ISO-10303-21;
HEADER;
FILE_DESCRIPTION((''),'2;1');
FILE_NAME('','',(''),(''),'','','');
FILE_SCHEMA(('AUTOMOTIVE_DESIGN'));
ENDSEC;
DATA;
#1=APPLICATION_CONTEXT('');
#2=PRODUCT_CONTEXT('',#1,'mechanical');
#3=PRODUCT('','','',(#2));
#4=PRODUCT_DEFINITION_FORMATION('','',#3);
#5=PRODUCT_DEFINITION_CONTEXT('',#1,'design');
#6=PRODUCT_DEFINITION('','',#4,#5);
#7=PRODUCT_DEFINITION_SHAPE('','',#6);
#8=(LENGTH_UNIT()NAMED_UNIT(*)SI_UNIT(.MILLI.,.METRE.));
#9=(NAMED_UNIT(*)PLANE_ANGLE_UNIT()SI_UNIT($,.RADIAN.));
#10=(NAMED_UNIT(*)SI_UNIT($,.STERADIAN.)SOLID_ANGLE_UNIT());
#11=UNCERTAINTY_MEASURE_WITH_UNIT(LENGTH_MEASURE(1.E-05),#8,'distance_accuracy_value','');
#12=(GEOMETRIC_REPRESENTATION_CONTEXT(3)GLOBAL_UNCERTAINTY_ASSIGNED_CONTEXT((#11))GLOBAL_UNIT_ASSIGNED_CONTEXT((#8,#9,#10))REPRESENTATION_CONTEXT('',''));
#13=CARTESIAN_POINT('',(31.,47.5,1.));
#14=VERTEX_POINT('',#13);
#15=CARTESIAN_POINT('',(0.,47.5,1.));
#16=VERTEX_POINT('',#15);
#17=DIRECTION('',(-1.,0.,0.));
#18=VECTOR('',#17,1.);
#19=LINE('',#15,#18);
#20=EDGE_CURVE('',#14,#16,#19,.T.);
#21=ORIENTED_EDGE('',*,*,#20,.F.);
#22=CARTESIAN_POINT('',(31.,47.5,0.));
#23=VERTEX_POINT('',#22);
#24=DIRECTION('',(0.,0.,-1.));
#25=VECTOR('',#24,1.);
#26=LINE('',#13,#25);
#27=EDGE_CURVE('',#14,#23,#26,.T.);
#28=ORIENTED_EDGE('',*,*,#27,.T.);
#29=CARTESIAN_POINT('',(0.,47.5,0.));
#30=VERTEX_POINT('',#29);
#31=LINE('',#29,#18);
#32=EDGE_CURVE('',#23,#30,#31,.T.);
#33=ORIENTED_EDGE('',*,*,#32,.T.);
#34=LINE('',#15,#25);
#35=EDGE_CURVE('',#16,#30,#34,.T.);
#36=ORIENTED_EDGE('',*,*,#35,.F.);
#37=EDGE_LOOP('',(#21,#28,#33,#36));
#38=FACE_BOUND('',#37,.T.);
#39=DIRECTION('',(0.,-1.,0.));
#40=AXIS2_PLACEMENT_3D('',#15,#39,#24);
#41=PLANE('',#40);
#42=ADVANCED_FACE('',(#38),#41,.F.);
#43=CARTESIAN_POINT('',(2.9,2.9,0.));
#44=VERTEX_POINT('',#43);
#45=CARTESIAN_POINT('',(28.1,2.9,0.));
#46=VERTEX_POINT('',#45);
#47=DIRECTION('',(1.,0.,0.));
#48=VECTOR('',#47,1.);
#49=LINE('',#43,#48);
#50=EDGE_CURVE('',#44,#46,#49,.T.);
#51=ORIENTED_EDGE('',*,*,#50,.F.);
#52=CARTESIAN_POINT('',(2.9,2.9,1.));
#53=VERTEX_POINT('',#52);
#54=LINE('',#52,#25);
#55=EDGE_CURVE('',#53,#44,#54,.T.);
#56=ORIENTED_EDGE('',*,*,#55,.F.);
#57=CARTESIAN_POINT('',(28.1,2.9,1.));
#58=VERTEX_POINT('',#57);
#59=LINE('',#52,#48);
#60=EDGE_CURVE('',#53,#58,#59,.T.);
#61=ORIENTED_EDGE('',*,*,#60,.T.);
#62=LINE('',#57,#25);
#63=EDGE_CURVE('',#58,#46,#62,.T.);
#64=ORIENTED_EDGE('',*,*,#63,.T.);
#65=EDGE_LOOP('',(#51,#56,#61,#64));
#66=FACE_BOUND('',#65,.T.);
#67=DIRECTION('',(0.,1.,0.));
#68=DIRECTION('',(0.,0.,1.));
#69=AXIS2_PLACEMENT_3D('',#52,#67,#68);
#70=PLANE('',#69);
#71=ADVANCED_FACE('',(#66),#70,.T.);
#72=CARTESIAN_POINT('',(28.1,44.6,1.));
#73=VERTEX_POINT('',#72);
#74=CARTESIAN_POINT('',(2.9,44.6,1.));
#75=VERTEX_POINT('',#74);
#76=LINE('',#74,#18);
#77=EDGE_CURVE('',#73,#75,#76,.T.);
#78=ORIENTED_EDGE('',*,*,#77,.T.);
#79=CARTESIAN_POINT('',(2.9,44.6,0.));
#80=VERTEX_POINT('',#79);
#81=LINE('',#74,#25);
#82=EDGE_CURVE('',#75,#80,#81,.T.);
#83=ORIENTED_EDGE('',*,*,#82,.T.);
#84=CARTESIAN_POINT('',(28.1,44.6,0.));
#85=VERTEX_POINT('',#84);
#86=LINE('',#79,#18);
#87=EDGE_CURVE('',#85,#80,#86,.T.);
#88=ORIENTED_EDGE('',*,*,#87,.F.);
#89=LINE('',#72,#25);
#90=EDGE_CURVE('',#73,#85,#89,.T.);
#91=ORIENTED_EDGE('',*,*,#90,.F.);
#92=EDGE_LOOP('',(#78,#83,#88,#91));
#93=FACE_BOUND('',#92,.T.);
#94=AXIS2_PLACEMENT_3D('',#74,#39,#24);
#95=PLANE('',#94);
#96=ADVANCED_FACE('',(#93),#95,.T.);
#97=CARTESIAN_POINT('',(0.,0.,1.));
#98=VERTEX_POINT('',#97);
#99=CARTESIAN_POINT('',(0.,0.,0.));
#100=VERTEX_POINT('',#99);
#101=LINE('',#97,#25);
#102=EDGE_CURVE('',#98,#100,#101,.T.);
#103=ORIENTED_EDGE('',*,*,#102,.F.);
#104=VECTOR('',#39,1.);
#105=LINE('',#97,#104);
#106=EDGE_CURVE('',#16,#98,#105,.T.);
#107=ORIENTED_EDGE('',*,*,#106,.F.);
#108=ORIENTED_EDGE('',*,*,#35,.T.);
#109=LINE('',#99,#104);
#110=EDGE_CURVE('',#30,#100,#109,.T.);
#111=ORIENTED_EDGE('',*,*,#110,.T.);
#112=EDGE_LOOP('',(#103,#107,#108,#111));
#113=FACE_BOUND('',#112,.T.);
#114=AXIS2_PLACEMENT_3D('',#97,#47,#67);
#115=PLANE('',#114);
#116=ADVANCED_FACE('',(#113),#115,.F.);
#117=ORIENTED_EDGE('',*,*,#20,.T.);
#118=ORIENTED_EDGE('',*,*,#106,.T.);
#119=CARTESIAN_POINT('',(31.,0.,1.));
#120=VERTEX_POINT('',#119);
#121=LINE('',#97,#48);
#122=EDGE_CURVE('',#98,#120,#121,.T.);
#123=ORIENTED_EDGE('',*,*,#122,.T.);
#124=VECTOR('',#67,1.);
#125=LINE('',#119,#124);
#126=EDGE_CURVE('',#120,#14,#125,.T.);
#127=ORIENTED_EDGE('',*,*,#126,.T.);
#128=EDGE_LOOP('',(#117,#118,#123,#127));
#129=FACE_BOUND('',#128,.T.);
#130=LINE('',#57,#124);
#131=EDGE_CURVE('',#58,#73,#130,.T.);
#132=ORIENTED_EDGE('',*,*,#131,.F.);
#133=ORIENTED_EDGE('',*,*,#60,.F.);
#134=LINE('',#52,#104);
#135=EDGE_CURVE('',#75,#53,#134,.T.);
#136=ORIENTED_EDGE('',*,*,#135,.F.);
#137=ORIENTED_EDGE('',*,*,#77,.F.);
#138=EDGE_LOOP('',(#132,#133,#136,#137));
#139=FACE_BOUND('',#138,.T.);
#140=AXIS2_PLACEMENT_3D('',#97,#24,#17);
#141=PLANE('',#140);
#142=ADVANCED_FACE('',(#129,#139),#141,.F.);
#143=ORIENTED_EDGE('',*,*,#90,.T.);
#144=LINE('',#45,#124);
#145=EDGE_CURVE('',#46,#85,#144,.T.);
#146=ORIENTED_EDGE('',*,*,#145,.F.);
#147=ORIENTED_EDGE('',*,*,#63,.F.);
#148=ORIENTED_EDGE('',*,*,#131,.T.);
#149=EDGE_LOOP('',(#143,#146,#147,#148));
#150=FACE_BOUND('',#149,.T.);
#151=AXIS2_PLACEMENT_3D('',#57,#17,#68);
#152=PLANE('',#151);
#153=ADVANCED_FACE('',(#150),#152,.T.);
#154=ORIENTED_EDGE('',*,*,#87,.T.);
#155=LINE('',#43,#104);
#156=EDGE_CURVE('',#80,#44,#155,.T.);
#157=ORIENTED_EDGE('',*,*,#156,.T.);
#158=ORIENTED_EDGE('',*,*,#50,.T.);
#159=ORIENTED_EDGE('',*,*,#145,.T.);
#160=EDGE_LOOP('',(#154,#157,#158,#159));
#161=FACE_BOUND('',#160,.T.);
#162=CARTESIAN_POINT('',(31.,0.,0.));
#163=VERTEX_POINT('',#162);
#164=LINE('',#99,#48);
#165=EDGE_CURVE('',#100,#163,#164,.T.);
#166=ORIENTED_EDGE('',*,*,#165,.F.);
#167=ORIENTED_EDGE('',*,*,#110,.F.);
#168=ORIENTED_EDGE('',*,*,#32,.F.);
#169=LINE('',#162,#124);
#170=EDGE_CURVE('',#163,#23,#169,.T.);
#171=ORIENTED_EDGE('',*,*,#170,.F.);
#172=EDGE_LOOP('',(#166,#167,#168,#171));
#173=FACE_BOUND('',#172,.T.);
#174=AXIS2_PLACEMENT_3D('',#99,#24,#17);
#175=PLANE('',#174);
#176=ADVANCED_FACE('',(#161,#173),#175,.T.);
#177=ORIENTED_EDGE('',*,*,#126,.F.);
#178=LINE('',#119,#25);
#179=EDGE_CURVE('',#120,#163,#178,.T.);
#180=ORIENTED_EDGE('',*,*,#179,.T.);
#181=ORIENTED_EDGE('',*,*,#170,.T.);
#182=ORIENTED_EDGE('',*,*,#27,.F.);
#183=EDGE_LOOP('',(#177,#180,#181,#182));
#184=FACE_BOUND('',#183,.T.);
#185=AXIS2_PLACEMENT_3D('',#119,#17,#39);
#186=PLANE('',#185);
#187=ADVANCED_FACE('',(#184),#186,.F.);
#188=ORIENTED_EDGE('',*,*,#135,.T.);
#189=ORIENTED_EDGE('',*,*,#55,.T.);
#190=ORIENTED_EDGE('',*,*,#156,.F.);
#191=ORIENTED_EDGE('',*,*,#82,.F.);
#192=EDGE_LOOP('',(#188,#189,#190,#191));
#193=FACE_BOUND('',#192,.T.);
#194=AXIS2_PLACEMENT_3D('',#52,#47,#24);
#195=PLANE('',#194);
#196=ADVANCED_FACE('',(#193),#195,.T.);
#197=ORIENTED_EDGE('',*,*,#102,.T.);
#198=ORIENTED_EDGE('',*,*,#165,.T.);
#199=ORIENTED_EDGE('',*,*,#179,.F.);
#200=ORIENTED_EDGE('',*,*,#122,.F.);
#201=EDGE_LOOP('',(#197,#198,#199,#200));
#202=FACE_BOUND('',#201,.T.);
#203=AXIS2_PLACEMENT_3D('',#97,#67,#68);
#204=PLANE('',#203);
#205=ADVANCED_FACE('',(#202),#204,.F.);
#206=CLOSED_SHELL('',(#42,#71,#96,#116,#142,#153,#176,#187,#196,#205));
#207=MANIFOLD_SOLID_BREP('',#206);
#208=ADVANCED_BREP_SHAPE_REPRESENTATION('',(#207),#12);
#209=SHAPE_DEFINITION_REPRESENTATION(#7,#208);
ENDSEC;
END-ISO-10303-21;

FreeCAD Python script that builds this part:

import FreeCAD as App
import Part
import Sketcher
Q = App.Units.Quantity


def add_polygon(sketch, points):
    """Adds a closed chain of lines whose ends are joined by coincident constraints."""
    first, n = sketch.GeometryCount, len(points)
    for a, b in zip(points, points[1:] + points[:1]):
        sketch.addGeometry(Part.LineSegment(App.Vector(*a, 0), App.Vector(*b, 0)), False)
    for i in range(n):
        sketch.addConstraint(Sketcher.Constraint("Coincident", first + i, 2, first + (i + 1) % n, 1))

doc = App.newDocument("Part")
body = doc.addObject("PartDesign::Body", "Body")

# Sketch on XY plane
sketch1 = doc.addObject("Sketcher::SketchObject", "Sketch")
body.addObject(sketch1)
sketch1.AttachmentSupport = (doc.XY_Plane, [""])
sketch1.MapMode = "FlatFace"
add_polygon(sketch1, [(0, 47.5), (0, 0), (31, 0), (31, 47.5)])  # lines 0-3
add_polygon(sketch1, [(28.1, 2.9), (2.9, 2.9), (2.9, 44.6), (28.1, 44.6)])  # lines 4-7
sketch1.addConstraint(Sketcher.Constraint("Vertical", 0))
sketch1.addConstraint(Sketcher.Constraint("Horizontal", 1))
sketch1.addConstraint(Sketcher.Constraint("Vertical", 2))
sketch1.addConstraint(Sketcher.Constraint("Horizontal", 3))
sketch1.addConstraint(Sketcher.Constraint("Horizontal", 4))
sketch1.addConstraint(Sketcher.Constraint("Vertical", 5))
sketch1.addConstraint(Sketcher.Constraint("Horizontal", 6))
sketch1.addConstraint(Sketcher.Constraint("Vertical", 7))
sketch1.addConstraint(Sketcher.Constraint("Coincident", 0, 2, -1, 1))
sketch1.addConstraint(Sketcher.Constraint("DistanceX", 1, 1, 1, 2, Q("31 mm")))
sketch1.addConstraint(Sketcher.Constraint("DistanceX", 4, 2, 4, 1, Q("25.2 mm")))
sketch1.addConstraint(Sketcher.Constraint("DistanceY", 0, 2, 0, 1, Q("47.5 mm")))
sketch1.addConstraint(Sketcher.Constraint("DistanceY", 5, 1, 5, 2, Q("41.7 mm")))
sketch1.addConstraint(Sketcher.Constraint("DistanceX", -1, 1, 4, 2, Q("2.9 mm")))
sketch1.addConstraint(Sketcher.Constraint("DistanceY", -1, 1, 4, 2, Q("2.9 mm")))
pad1 = doc.addObject("PartDesign::Pad", "Pad")
body.addObject(pad1)
pad1.Profile = sketch1
pad1.Length = 1

doc.recompute()
